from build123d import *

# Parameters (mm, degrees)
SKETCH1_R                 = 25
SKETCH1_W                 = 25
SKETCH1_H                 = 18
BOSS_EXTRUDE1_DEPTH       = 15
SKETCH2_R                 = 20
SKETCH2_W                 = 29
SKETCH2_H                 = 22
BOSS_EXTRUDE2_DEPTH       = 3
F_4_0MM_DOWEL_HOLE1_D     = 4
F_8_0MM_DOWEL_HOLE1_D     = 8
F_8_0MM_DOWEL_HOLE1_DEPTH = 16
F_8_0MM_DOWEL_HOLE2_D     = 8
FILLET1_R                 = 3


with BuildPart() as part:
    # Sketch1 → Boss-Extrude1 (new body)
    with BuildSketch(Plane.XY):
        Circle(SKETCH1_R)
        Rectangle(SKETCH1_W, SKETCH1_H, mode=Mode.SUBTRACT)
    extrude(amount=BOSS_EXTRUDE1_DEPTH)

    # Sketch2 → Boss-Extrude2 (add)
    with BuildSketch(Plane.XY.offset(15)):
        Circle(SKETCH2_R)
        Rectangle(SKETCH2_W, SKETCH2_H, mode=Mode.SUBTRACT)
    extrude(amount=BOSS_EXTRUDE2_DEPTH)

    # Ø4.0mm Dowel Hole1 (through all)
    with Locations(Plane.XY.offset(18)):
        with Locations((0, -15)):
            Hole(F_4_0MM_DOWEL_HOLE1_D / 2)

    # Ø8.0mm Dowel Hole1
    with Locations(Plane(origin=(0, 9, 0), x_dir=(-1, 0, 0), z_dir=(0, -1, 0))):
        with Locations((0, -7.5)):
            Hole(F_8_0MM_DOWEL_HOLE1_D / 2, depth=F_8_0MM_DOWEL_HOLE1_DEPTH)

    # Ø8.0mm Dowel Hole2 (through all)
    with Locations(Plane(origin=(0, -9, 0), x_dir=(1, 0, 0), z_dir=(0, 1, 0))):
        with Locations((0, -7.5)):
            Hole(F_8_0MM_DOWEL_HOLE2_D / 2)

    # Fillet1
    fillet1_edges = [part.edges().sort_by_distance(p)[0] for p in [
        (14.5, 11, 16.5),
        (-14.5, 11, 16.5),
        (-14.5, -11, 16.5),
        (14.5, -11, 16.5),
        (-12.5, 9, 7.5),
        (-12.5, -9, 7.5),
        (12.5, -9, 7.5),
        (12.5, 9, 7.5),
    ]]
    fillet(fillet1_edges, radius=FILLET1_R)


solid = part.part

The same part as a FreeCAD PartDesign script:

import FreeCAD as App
import Part
import Sketcher


def edges_at(feature, points):
    """Names of the edges that pass closest to the given points."""
    edges = feature.Shape.Edges
    near = lambda p: min(range(len(edges)), key=lambda i: edges[i].distToShape(Part.Vertex(*p))[0])
    return sorted({f"Edge{near(p) + 1}" for p in points})


def add_polygon(sketch, points):
    """Adds a closed chain of lines whose ends are joined by coincident constraints."""
    first, n = sketch.GeometryCount, len(points)
    for a, b in zip(points, points[1:] + points[:1]):
        sketch.addGeometry(Part.LineSegment(App.Vector(*a, 0), App.Vector(*b, 0)), False)
    for i in range(n):
        sketch.addConstraint(Sketcher.Constraint("Coincident", first + i, 2, first + (i + 1) % n, 1))

doc = App.newDocument("Part")
body = doc.addObject("PartDesign::Body", "Body")

# Sketch on XY plane
sketch1 = body.newObject("Sketcher::SketchObject", "Sketch")
sketch1.AttachmentSupport = (doc.getObject("XY_Plane"), [""])
sketch1.MapMode = "FlatFace"
sketch1.addGeometry(Part.Circle(App.Vector(0, 0, 0), App.Vector(0, 0, 1), 25), False)  # 0
add_polygon(sketch1, [(12, -9), (-12, -9), (-12, 9), (12, 9)])  # lines 1-4
sketch1.addConstraint([
    Sketcher.Constraint("Horizontal", 1),
    Sketcher.Constraint("Vertical", 2),
    Sketcher.Constraint("Horizontal", 3),
    Sketcher.Constraint("Vertical", 4),
    Sketcher.Constraint("Coincident", 0, 3, -1, 1),
    Sketcher.Constraint("Symmetric", 1, 2, 3, 2, -1, 1),
    Sketcher.Constraint("Diameter", 0, 50.0),
    Sketcher.Constraint("DistanceX", 1, 2, 1, 1, 25.0),
    Sketcher.Constraint("DistanceY", 2, 1, 2, 2, 18.0),
])
pad1 = body.newObject("PartDesign::Pad", "Pad")
pad1.Profile = sketch1
pad1.Length = 15

# Sketch on XY plane
sketch2 = body.newObject("Sketcher::SketchObject", "Sketch001")
sketch2.AttachmentSupport = (doc.getObject("XY_Plane"), [""])
sketch2.MapMode = "FlatFace"
sketch2.AttachmentOffset = App.Placement(App.Vector(0, 0, 15), App.Rotation())
sketch2.addGeometry(Part.Circle(App.Vector(0, 0, 0), App.Vector(0, 0, 1), 20), False)  # 0
add_polygon(sketch2, [(14, -11), (-14, -11), (-14, 11), (14, 11)])  # lines 1-4
sketch2.addConstraint([
    Sketcher.Constraint("Horizontal", 1),
    Sketcher.Constraint("Vertical", 2),
    Sketcher.Constraint("Horizontal", 3),
    Sketcher.Constraint("Vertical", 4),
    Sketcher.Constraint("Coincident", 0, 3, -1, 1),
    Sketcher.Constraint("Symmetric", 1, 2, 3, 2, -1, 1),
    Sketcher.Constraint("Diameter", 0, 40.0),
    Sketcher.Constraint("DistanceX", 1, 2, 1, 1, 29.0),
    Sketcher.Constraint("DistanceY", 2, 1, 2, 2, 22.0),
])
pad2 = body.newObject("PartDesign::Pad", "Pad001")
pad2.Profile = sketch2
pad2.Length = 3

# Sketch on XY plane
sketch3 = body.newObject("Sketcher::SketchObject", "Sketch002")
sketch3.AttachmentSupport = (doc.getObject("XY_Plane"), [""])
sketch3.MapMode = "FlatFace"
sketch3.AttachmentOffset = App.Placement(App.Vector(0, 0, 18), App.Rotation())
sketch3.addGeometry(Part.Circle(App.Vector(0, -15, 0), App.Vector(0, 0, 1), 2), False)
sketch3.addConstraint([
    Sketcher.Constraint("PointOnObject", 0, 3, -2),
    Sketcher.Constraint("Diameter", 0, 4.0),
    Sketcher.Constraint("DistanceY", 0, 3, -1, 1, 15.0),
])
doc.recompute()
hole = body.newObject("PartDesign::Hole", "Hole")
hole.Profile = sketch3
hole.ThreadType = "None"
hole.Diameter = 4
hole.DepthType = "ThroughAll"

# Sketch on XZ plane
sketch4 = body.newObject("Sketcher::SketchObject", "Sketch003")
sketch4.AttachmentSupport = (doc.getObject("XZ_Plane"), [""])
sketch4.MapMode = "FlatFace"
sketch4.AttachmentOffset = App.Placement(App.Vector(0, 0, -9), App.Rotation())
sketch4.addGeometry(Part.Circle(App.Vector(0, 7.5, 0), App.Vector(0, 0, 1), 4), False)
sketch4.addConstraint([
    Sketcher.Constraint("PointOnObject", 0, 3, -2),
    Sketcher.Constraint("Diameter", 0, 8.0),
    Sketcher.Constraint("DistanceY", -1, 1, 0, 3, 7.5),
])
doc.recompute()
hole2 = body.newObject("PartDesign::Hole", "Hole001")
hole2.Profile = sketch4
hole2.ThreadType = "None"
hole2.Diameter = 8
hole2.DepthType = "Dimension"
hole2.Depth = 16
hole2.DrillPoint = "Flat"

# Sketch on XZ plane
sketch5 = body.newObject("Sketcher::SketchObject", "Sketch004")
sketch5.AttachmentSupport = (doc.getObject("XZ_Plane"), [""])
sketch5.MapMode = "FlatFace"
sketch5.AttachmentOffset = App.Placement(App.Vector(0, 0, 9), App.Rotation())
sketch5.addGeometry(Part.Circle(App.Vector(0, 7.5, 0), App.Vector(0, 0, 1), 4), False)
sketch5.addConstraint([
    Sketcher.Constraint("PointOnObject", 0, 3, -2),
    Sketcher.Constraint("Diameter", 0, 8.0),
    Sketcher.Constraint("DistanceY", -1, 1, 0, 3, 7.5),
])
doc.recompute()
hole3 = body.newObject("PartDesign::Hole", "Hole002")
hole3.Profile = sketch5
hole3.ThreadType = "None"
hole3.Diameter = 8
hole3.DepthType = "ThroughAll"
hole3.Reversed = True
doc.recompute()

fillet = body.newObject("PartDesign::Fillet", "Fillet")
fillet.Base = (hole3, edges_at(hole3, [
    (14.5, 11, 16.5),
    (-14.5, 11, 16.5),
    (-14.5, -11, 16.5),
    (14.5, -11, 16.5),
    (-12.5, 9, 7.5),
    (-12.5, -9, 7.5),
    (12.5, -9, 7.5),
    (12.5, 9, 7.5),
]))
fillet.Radius = 3

doc.recompute()
